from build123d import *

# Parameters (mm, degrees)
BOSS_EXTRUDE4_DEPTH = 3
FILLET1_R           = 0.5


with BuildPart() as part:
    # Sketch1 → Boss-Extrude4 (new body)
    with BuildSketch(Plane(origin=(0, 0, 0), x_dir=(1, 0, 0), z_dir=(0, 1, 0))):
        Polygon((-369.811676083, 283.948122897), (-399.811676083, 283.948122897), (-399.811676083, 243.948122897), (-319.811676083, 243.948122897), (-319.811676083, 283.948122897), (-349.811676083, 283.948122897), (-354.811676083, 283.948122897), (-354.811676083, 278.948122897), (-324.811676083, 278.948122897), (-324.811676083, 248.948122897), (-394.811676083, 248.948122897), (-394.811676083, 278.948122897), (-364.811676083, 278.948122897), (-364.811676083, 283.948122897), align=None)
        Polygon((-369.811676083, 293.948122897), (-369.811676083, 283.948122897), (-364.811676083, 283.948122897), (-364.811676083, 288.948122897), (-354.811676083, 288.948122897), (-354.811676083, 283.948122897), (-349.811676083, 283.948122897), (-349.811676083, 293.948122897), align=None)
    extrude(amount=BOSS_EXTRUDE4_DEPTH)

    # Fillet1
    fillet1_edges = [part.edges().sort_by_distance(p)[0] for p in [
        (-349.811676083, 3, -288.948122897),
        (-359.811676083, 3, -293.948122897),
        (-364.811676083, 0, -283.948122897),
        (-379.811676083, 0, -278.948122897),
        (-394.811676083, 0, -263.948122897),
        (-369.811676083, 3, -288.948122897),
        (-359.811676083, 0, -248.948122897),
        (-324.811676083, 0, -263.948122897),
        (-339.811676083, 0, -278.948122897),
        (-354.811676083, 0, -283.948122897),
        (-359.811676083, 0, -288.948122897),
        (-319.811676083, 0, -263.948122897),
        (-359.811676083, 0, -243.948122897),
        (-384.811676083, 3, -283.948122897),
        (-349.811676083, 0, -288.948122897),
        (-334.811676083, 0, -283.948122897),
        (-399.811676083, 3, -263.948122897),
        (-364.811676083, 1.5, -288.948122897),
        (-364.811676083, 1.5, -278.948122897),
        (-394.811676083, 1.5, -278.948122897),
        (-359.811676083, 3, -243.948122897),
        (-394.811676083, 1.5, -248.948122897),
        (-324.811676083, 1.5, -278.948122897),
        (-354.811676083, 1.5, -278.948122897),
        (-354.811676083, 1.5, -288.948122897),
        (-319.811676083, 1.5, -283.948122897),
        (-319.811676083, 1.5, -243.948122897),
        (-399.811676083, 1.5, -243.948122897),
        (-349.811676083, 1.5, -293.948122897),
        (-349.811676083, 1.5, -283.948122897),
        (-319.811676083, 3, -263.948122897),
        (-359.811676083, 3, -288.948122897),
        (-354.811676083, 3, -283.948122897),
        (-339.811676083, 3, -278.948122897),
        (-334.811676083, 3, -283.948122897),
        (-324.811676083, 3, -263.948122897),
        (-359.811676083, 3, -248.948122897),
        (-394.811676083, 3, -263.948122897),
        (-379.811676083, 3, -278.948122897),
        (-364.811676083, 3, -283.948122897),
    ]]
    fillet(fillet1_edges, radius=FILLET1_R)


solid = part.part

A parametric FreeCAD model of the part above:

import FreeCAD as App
import Part
import Sketcher
from FreeCAD import Vector
Q = App.Units.Quantity


def edges_at(feature, points):
    """Names of the edges that pass closest to the given points."""
    edges = feature.Shape.Edges
    near = lambda p: min(range(len(edges)), key=lambda i: edges[i].distToShape(Part.Vertex(*p))[0])
    return sorted({f"Edge{near(p) + 1}" for p in points})


def add_polygon(sketch, points):
    """Adds a closed chain of lines whose ends are joined by coincident constraints."""
    first, n = sketch.GeometryCount, len(points)
    for a, b in zip(points, points[1:] + points[:1]):
        sketch.addGeometry(Part.LineSegment(App.Vector(*a, 0), App.Vector(*b, 0)), False)
    for i in range(n):
        sketch.addConstraint(Sketcher.Constraint("Coincident", first + i, 2, first + (i + 1) % n, 1))

doc = App.newDocument("Part")
body = doc.addObject("PartDesign::Body", "Body")

# Sketch on XZ plane
sketch1 = body.newObject("Sketcher::SketchObject", "Sketch")
sketch1.AttachmentSupport = (doc.getObject("XZ_Plane"), [""])
sketch1.MapMode = "FlatFace"
add_polygon(sketch1, [(-400, -284), (-400, -244), (-320, -244), (-320, -284), (-350, -284), (-350, -294), (-370, -294), (-370, -284)])  # lines 0-7
add_polygon(sketch1, [(-355, -279), (-325, -279), (-325, -249), (-395, -249), (-395, -279), (-365, -279), (-365, -289), (-355, -289)])  # lines 8-15
sketch1.addConstraint([
    Sketcher.Constraint("Vertical", 0),
    Sketcher.Constraint("Horizontal", 1),
    Sketcher.Constraint("Vertical", 2),
    Sketcher.Constraint("Horizontal", 3),
    Sketcher.Constraint("Vertical", 4),
    Sketcher.Constraint("Horizontal", 5),
    Sketcher.Constraint("Vertical", 6),
    Sketcher.Constraint("Horizontal", 7),
    Sketcher.Constraint("Horizontal", 8),
    Sketcher.Constraint("Vertical", 9),
    Sketcher.Constraint("Horizontal", 10),
    Sketcher.Constraint("Vertical", 11),
    Sketcher.Constraint("Horizontal", 12),
    Sketcher.Constraint("Vertical", 13),
    Sketcher.Constraint("Horizontal", 14),
    Sketcher.Constraint("Vertical", 15),
    Sketcher.Constraint("Horizontal", 3, 2, 6, 2),
    Sketcher.Constraint("Horizontal", 8, 2, 11, 2),
    Sketcher.Constraint("Equal", 3, 7),
    Sketcher.Constraint("Equal", 7, 8),
    Sketcher.Constraint("Equal", 8, 12),
    Sketcher.Constraint("Equal", 14, 4),
    Sketcher.Constraint("Equal", 12, 9),
    Sketcher.Constraint("Equal", 6, 13),
    Sketcher.Constraint("DistanceX", 1, 1, 1, 2, Q("80 mm")),
    Sketcher.Constraint("DistanceX", 3, 2, 3, 1, Q("30 mm")),
    Sketcher.Constraint("DistanceX", 10, 2, 10, 1, Q("70 mm")),
    Sketcher.Constraint("DistanceY", 0, 1, 0, 2, Q("40 mm")),
    Sketcher.Constraint("DistanceX", 8, 2, 2, 2, Q("5 mm")),
    Sketcher.Constraint("DistanceY", 2, 2, 8, 2, Q("5 mm")),
    Sketcher.Constraint("DistanceX", 0, 2, -1, 1, Q("399.811676 mm")),
    Sketcher.Constraint("DistanceY", 0, 2, -1, 1, Q("243.948123 mm")),
])
pad1 = body.newObject("PartDesign::Pad", "Pad")
pad1.Profile = sketch1
pad1.Length = 3
pad1.Reversed = True
doc.recompute()

fillet = body.newObject("PartDesign::Fillet", "Fillet")
fillet.Base = (pad1, edges_at(pad1, [
    (-349.812, 3, -288.948),
    (-359.812, 3, -293.948),
    (-364.812, 0, -283.948),
    (-379.812, 0, -278.948),
    (-394.812, 0, -263.948),
    (-369.812, 3, -288.948),
    (-359.812, 0, -248.948),
    (-324.812, 0, -263.948),
    (-339.812, 0, -278.948),
    (-354.812, 0, -283.948),
    (-359.812, 0, -288.948),
    (-319.812, 0, -263.948),
    (-359.812, 0, -243.948),
    (-384.812, 3, -283.948),
    (-349.812, 0, -288.948),
    (-334.812, 0, -283.948),
    (-399.812, 3, -263.948),
    (-364.812, 1.5, -288.948),
    (-364.812, 1.5, -278.948),
    (-394.812, 1.5, -278.948),
    (-359.812, 3, -243.948),
    (-394.812, 1.5, -248.948),
    (-324.812, 1.5, -278.948),
    (-354.812, 1.5, -278.948),
    (-354.812, 1.5, -288.948),
    (-319.812, 1.5, -283.948),
    (-319.812, 1.5, -243.948),
    (-399.812, 1.5, -243.948),
    (-349.812, 1.5, -293.948),
    (-349.812, 1.5, -283.948),
    (-319.812, 3, -263.948),
    (-359.812, 3, -288.948),
    (-354.812, 3, -283.948),
    (-339.812, 3, -278.948),
    (-334.812, 3, -283.948),
    (-324.812, 3, -263.948),
    (-359.812, 3, -248.948),
    (-394.812, 3, -263.948),
    (-379.812, 3, -278.948),
    (-364.812, 3, -283.948),
]))
fillet.Radius = 0.5

doc.recompute()
